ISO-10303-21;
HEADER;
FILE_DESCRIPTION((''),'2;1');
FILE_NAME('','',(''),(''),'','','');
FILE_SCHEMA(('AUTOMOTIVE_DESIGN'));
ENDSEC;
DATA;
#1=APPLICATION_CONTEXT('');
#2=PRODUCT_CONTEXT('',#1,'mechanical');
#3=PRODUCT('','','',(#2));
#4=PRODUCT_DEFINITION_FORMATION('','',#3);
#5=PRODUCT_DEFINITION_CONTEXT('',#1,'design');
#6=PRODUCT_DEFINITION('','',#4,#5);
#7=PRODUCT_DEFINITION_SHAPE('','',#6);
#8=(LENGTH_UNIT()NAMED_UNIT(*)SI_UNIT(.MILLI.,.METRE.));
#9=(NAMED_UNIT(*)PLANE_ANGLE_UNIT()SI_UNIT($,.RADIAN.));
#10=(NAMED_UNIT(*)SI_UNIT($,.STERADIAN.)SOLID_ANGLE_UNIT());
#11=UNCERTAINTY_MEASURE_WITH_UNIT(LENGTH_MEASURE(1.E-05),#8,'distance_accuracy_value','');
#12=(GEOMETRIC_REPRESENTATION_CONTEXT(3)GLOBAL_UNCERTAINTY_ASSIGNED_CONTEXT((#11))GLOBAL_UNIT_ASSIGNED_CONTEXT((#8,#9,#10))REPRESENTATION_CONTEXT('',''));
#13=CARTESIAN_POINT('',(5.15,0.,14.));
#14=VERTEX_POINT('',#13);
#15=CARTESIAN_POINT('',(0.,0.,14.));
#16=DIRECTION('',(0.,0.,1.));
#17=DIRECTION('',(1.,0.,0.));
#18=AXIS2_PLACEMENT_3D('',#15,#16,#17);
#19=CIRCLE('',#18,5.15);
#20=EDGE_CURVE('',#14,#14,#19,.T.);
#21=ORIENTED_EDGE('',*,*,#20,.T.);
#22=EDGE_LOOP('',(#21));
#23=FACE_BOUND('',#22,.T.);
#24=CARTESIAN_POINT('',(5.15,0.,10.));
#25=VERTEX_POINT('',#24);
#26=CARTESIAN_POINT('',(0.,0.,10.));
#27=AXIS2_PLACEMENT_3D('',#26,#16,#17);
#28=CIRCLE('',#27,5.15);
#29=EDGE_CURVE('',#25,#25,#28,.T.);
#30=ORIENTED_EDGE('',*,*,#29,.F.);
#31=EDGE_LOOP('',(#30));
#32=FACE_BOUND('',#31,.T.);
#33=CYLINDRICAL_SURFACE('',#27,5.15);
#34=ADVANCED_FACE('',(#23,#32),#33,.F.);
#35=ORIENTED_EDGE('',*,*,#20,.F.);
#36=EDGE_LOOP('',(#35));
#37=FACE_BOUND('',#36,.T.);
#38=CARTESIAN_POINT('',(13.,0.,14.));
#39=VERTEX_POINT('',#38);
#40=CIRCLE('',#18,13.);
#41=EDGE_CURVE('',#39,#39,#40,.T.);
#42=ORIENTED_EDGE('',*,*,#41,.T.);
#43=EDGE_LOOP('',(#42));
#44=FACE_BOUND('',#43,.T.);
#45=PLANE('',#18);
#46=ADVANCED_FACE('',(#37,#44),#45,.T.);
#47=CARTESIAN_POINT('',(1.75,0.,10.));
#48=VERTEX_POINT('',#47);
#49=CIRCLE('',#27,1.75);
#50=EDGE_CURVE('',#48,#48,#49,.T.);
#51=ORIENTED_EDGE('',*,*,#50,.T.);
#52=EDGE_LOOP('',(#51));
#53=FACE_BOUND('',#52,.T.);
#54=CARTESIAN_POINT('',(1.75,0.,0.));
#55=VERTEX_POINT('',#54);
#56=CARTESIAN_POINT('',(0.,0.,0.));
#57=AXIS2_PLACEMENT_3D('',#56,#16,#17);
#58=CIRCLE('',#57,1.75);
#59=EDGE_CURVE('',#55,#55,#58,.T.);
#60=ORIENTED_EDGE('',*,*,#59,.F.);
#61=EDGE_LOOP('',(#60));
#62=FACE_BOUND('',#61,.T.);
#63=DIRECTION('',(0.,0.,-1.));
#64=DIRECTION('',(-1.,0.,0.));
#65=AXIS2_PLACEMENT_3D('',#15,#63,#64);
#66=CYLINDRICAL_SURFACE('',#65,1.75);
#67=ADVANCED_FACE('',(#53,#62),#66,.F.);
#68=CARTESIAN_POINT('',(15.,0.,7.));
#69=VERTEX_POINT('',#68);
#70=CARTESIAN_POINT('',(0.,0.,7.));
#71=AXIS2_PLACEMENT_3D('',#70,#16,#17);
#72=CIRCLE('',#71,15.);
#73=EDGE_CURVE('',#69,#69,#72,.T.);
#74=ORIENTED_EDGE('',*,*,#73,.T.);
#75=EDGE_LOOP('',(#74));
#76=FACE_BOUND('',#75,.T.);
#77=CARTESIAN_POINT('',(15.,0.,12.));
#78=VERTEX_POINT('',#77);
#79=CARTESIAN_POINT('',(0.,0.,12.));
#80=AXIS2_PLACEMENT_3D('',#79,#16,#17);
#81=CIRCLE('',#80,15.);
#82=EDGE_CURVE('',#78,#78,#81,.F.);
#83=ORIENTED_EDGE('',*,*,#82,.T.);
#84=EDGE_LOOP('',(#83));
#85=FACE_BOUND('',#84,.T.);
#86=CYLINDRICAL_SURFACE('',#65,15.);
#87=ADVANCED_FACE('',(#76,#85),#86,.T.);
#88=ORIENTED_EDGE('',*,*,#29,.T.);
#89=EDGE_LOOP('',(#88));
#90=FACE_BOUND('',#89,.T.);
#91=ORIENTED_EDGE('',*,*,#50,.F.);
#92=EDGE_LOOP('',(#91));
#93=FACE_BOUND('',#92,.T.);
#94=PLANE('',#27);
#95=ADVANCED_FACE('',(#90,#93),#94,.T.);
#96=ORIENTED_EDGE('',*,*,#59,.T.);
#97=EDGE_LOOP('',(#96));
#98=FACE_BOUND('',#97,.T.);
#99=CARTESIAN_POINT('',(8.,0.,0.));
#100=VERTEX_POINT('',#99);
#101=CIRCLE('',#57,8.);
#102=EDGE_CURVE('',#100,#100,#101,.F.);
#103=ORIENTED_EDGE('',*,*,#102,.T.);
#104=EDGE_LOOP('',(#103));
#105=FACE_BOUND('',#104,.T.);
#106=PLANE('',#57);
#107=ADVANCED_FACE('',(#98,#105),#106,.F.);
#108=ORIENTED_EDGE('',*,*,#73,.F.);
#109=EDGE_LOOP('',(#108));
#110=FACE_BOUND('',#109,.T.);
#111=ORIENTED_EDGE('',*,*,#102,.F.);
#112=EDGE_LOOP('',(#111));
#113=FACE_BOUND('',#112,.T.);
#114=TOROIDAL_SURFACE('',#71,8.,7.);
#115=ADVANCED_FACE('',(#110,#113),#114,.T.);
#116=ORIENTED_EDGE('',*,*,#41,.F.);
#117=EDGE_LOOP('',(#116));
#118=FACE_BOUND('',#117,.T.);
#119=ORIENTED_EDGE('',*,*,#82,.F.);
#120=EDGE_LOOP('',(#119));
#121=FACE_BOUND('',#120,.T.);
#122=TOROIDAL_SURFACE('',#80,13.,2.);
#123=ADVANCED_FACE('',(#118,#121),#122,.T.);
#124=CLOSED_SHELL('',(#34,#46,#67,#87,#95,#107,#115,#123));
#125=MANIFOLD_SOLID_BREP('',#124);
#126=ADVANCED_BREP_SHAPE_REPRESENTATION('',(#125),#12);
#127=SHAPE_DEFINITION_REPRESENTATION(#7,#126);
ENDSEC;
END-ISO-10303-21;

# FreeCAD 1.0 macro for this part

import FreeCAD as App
import Part
import Sketcher
Q = App.Units.Quantity


def edges_at(feature, points):
    """Names of the edges that pass closest to the given points."""
    edges = feature.Shape.Edges
    near = lambda p: min(range(len(edges)), key=lambda i: edges[i].distToShape(Part.Vertex(*p))[0])
    return sorted({f"Edge{near(p) + 1}" for p in points})

doc = App.newDocument("Part")
params = doc.addObject("Spreadsheet::Sheet", "Params")
for row, (alias, value) in enumerate([
    ("sketch1_diameter", "30 mm"),
    ("sketch1_diameter2", "3.5 mm"),
    ("pad1_length", "14 mm"),
    ("sketch2_diameter", "10.3 mm"),
    ("pocket1_length", "4 mm"),
    ("fillet_radius", "2 mm"),
    ("fillet2_radius", "7 mm"),
], start=1):
    params.set(f"A{row}", alias)
    params.set(f"B{row}", "=" + value)
    params.setAlias(f"B{row}", alias)

body = doc.addObject("PartDesign::Body", "Body")

# Sketch on XY plane
sketch1 = body.newObject("Sketcher::SketchObject", "Sketch")
sketch1.AttachmentSupport = (doc.getObject("XY_Plane"), [""])
sketch1.MapMode = "FlatFace"
sketch1.addGeometry(Part.Circle(App.Vector(0, 0, 0), App.Vector(0, 0, 1), 15), False)
sketch1.addGeometry(Part.Circle(App.Vector(0, 0, 0), App.Vector(0, 0, 1), 1.8), False)
sketch1.addConstraint(Sketcher.Constraint("Coincident", 0, 3, -1, 1))
sketch1.addConstraint(Sketcher.Constraint("Coincident", 1, 3, -1, 1))
sketch1.addConstraint(Sketcher.Constraint("Diameter", 0, Q("30 mm")))
sketch1.addConstraint(Sketcher.Constraint("Diameter", 1, Q("3.5 mm")))
sketch1.setExpression("Constraints[2]", "Params.sketch1_diameter")
sketch1.setExpression("Constraints[3]", "Params.sketch1_diameter2")
pad1 = body.newObject("PartDesign::Pad", "Pad")
pad1.Profile = sketch1
pad1.setExpression("Length", "Params.pad1_length")

# Sketch on XY plane
sketch2 = body.newObject("Sketcher::SketchObject", "Sketch001")
sketch2.AttachmentSupport = (doc.getObject("XY_Plane"), [""])
sketch2.MapMode = "FlatFace"
sketch2.AttachmentOffset = App.Placement(App.Vector(0, 0, 14), App.Rotation())
sketch2.addGeometry(Part.Circle(App.Vector(0, 0, 0), App.Vector(0, 0, 1), 5), False)
sketch2.addConstraint(Sketcher.Constraint("Coincident", 0, 3, -1, 1))
sketch2.addConstraint(Sketcher.Constraint("Diameter", 0, Q("10.3 mm")))
sketch2.setExpression("Constraints[1]", "Params.sketch2_diameter")
pocket1 = body.newObject("PartDesign::Pocket", "Pocket")
pocket1.Profile = sketch2
pocket1.setExpression("Length", "Params.pocket1_length")
doc.recompute()

fillet = body.newObject("PartDesign::Fillet", "Fillet")
fillet.Base = (pocket1, edges_at(pocket1, [(-15, 0, 14)]))
fillet.setExpression("Radius", "Params.fillet_radius")
doc.recompute()

fillet2 = body.newObject("PartDesign::Fillet", "Fillet001")
fillet2.Base = (fillet, edges_at(fillet, [(-15, 0, 0)]))
fillet2.setExpression("Radius", "Params.fillet2_radius")

doc.recompute()
